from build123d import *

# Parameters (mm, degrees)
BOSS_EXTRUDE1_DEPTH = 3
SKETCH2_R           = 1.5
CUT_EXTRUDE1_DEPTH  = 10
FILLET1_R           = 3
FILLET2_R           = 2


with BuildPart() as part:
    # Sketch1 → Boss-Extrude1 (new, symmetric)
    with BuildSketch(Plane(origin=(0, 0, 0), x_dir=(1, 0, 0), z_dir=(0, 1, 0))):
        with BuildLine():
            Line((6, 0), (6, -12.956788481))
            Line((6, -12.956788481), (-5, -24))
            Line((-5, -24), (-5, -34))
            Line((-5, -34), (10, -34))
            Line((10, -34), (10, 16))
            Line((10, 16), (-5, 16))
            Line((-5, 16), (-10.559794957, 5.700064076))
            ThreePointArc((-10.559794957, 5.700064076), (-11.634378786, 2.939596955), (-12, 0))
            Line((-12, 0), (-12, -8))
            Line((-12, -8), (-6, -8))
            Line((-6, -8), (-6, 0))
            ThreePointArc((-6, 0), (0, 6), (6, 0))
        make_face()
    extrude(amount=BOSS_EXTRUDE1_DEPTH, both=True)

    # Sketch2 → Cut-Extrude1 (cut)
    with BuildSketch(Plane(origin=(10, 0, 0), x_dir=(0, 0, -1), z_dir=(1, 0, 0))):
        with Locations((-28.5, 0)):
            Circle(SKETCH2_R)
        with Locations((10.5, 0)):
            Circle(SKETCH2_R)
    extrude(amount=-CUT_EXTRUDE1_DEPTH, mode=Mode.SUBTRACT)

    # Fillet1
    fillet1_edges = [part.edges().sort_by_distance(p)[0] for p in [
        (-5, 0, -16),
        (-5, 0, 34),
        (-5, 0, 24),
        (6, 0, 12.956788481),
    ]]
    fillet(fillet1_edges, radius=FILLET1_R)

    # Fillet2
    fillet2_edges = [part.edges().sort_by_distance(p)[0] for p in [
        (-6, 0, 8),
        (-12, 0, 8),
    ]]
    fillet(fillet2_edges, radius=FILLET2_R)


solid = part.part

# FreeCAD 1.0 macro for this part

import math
import FreeCAD as App
import Part
import Sketcher

V = App.Vector


def edges_at(feature, points):
    """Names of the edges that pass closest to the given points."""
    edges = feature.Shape.Edges
    near = lambda p: min(range(len(edges)), key=lambda i: edges[i].distToShape(Part.Vertex(*p))[0])
    return sorted({f"Edge{near(p) + 1}" for p in points})

doc = App.newDocument("Part")
body = doc.addObject("PartDesign::Body", "Body")

# Sketch on XZ plane
sketch1 = doc.addObject("Sketcher::SketchObject", "Sketch")
body.addObject(sketch1)
sketch1.AttachmentSupport = (doc.XZ_Plane, [""])
sketch1.MapMode = "FlatFace"
sketch1.addGeometry([
    Part.LineSegment(V(6, 0, 0), V(6, 12.956788, 0)),  # 0
    Part.LineSegment(V(6, 12.956788, 0), V(-5, 24, 0)),  # 1
    Part.LineSegment(V(-5, 24, 0), V(-5, 34, 0)),  # 2
    Part.LineSegment(V(-5, 34, 0), V(10, 34, 0)),  # 3
    Part.LineSegment(V(10, 34, 0), V(10, -16, 0)),  # 4
    Part.LineSegment(V(10, -16, 0), V(-5, -16, 0)),  # 5
    Part.LineSegment(V(-5, -16, 0), V(-10.559795, -5.700064, 0)),  # 6
    Part.ArcOfCircle(Part.Circle(V(0, 0, 0), V(0, 0, 1), 12), math.radians(-180), math.radians(-151.640302)),  # 7
    Part.LineSegment(V(-12, 0, 0), V(-12, 8, 0)),  # 8
    Part.LineSegment(V(-12, 8, 0), V(-6, 8, 0)),  # 9
    Part.LineSegment(V(-6, 8, 0), V(-6, 0, 0)),  # 10
    Part.ArcOfCircle(Part.Circle(V(0, 0, 0), V(0, 0, 1), 6), math.radians(180), math.radians(360)),  # 11
], False)
sketch1.addConstraint([
    Sketcher.Constraint("Coincident", 0, 2, 1, 1),
    Sketcher.Constraint("Coincident", 1, 2, 2, 1),
    Sketcher.Constraint("Coincident", 2, 2, 3, 1),
    Sketcher.Constraint("Coincident", 3, 2, 4, 1),
    Sketcher.Constraint("Coincident", 4, 2, 5, 1),
    Sketcher.Constraint("Coincident", 5, 2, 6, 1),
    Sketcher.Constraint("Tangent", 6, 2, 7, 2),
    Sketcher.Constraint("Tangent", 7, 1, 8, 1),
    Sketcher.Constraint("Coincident", 8, 2, 9, 1),
    Sketcher.Constraint("Coincident", 9, 2, 10, 1),
    Sketcher.Constraint("Tangent", 10, 2, 11, 1),
    Sketcher.Constraint("Tangent", 11, 2, 0, 1),
    Sketcher.Constraint("Vertical", 0),
    Sketcher.Constraint("Vertical", 2),
    Sketcher.Constraint("Horizontal", 3),
    Sketcher.Constraint("Vertical", 4),
    Sketcher.Constraint("Horizontal", 5),
    Sketcher.Constraint("Vertical", 8),
    Sketcher.Constraint("Horizontal", 9),
    Sketcher.Constraint("Vertical", 10),
    Sketcher.Constraint("Coincident", 7, 3, -1, 1),
    Sketcher.Constraint("Coincident", 11, 3, -1, 1),
    Sketcher.Constraint("Vertical", 2, 2, 5, 2),
    Sketcher.Constraint("Radius", 7, 12.0),
    Sketcher.Constraint("Radius", 11, 6.0),
    Sketcher.Constraint("DistanceX", 3, 1, 3, 2, 15.0),
    Sketcher.Constraint("DistanceY", 2, 1, 2, 2, 10.0),
    Sketcher.Constraint("DistanceY", 4, 2, 4, 1, 50.0),
    Sketcher.Constraint("DistanceY", 8, 1, 8, 2, 8.0),
    Sketcher.Constraint("DistanceX", 1, 2, -1, 1, 5.0),
    Sketcher.Constraint("DistanceY", -1, 1, 1, 2, 24.0),
    Sketcher.Constraint("DistanceY", 0, 1, 0, 2, 12.956788),
])
pad1 = doc.addObject("PartDesign::Pad", "Pad")
body.addObject(pad1)
pad1.Profile = sketch1
pad1.Length = 6
pad1.Midplane = True

# Sketch on YZ plane
sketch2 = doc.addObject("Sketcher::SketchObject", "Sketch001")
body.addObject(sketch2)
sketch2.AttachmentSupport = (doc.YZ_Plane, [""])
sketch2.MapMode = "FlatFace"
sketch2.AttachmentOffset = App.Placement(V(0, 0, 10), App.Rotation())
sketch2.addGeometry([
    Part.Circle(V(0, 28.5, 0), V(0, 0, 1), 1.5),
    Part.Circle(V(0, -10.5, 0), V(0, 0, 1), 1.5),
], False)
sketch2.addConstraint([
    Sketcher.Constraint("Equal", 0, 1),
    Sketcher.Constraint("PointOnObject", 0, 3, -2),
    Sketcher.Constraint("PointOnObject", 1, 3, -2),
    Sketcher.Constraint("Diameter", 0, 3.0),
    Sketcher.Constraint("DistanceY", 1, 3, 0, 3, 39.0),
    Sketcher.Constraint("DistanceY", -1, 1, 0, 3, 28.5),
])
pocket1 = doc.addObject("PartDesign::Pocket", "Pocket")
body.addObject(pocket1)
pocket1.Profile = sketch2
pocket1.Length = 10
doc.recompute()

fillet = doc.addObject("PartDesign::Fillet", "Fillet")
body.addObject(fillet)
fillet.Base = (pocket1, edges_at(pocket1, [
    (-5, 0, -16),
    (-5, 0, 34),
    (-5, 0, 24),
    (6, 0, 12.957),
]))
fillet.Radius = 3
doc.recompute()

fillet2 = doc.addObject("PartDesign::Fillet", "Fillet001")
body.addObject(fillet2)
fillet2.Base = (fillet, edges_at(fillet, [(-6, 0, 8), (-12, 0, 8)]))
fillet2.Radius = 2

doc.recompute()
